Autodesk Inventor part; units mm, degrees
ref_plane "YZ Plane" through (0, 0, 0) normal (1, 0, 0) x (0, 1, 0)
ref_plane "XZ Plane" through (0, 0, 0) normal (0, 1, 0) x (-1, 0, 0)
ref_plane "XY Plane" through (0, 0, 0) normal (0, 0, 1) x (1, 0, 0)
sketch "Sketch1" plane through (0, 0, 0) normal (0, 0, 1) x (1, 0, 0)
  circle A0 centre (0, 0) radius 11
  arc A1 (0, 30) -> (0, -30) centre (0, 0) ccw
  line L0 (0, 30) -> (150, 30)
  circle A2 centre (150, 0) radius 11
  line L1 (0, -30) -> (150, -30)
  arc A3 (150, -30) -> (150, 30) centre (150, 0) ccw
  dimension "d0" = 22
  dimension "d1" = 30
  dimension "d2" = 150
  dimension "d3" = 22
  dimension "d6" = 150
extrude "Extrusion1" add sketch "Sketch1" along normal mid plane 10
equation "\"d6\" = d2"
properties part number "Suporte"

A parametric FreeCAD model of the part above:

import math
import FreeCAD as App
import Part
import Sketcher

doc = App.newDocument("Part")
body = doc.addObject("PartDesign::Body", "Body")

sketch1 = body.newObject("Sketcher::SketchObject", "Sketch")
sketch1.AttachmentSupport = (doc.getObject("XY_Plane"), [""])
sketch1.MapMode = "FlatFace"
sketch1.addGeometry(Part.LineSegment(App.Vector(150, 30, 0), App.Vector(0, 30, 0)), False)
sketch1.addGeometry(Part.ArcOfCircle(Part.Circle(App.Vector(0, 0, 0), App.Vector(0, 0, 1), 30), math.radians(90), math.radians(270)), False)
sketch1.addGeometry(Part.LineSegment(App.Vector(0, -30, 0), App.Vector(150, -30, 0)), False)
sketch1.addGeometry(Part.ArcOfCircle(Part.Circle(App.Vector(150, 0, 0), App.Vector(0, 0, 1), 30), math.radians(-90), math.radians(90)), False)
sketch1.addGeometry(Part.Circle(App.Vector(0, 0, 0), App.Vector(0, 0, 1), 11), False)
sketch1.addGeometry(Part.Circle(App.Vector(150, 0, 0), App.Vector(0, 0, 1), 11), False)
sketch1.addConstraint(Sketcher.Constraint("Tangent", 0, 2, 1, 1))
sketch1.addConstraint(Sketcher.Constraint("Tangent", 1, 2, 2, 1))
sketch1.addConstraint(Sketcher.Constraint("Tangent", 2, 2, 3, 1))
sketch1.addConstraint(Sketcher.Constraint("Tangent", 3, 2, 0, 1))
sketch1.addConstraint(Sketcher.Constraint("Horizontal", 0))
sketch1.addConstraint(Sketcher.Constraint("Horizontal", 2))
sketch1.addConstraint(Sketcher.Constraint("Coincident", 1, 3, -1, 1))
sketch1.addConstraint(Sketcher.Constraint("Coincident", 4, 3, -1, 1))
sketch1.addConstraint(Sketcher.Constraint("Coincident", 5, 3, 3, 3))
sketch1.addConstraint(Sketcher.Constraint("Equal", 4, 5))
sketch1.addConstraint(Sketcher.Constraint("Diameter", 4, 22.0))
sketch1.addConstraint(Sketcher.Constraint("Radius", 1, 30.0))
sketch1.addConstraint(Sketcher.Constraint("DistanceX", 0, 2, 0, 1, 150.0))
pad1 = body.newObject("PartDesign::Pad", "Pad")
pad1.Profile = sketch1
pad1.Length = 10
pad1.Midplane = True

doc.recompute()
